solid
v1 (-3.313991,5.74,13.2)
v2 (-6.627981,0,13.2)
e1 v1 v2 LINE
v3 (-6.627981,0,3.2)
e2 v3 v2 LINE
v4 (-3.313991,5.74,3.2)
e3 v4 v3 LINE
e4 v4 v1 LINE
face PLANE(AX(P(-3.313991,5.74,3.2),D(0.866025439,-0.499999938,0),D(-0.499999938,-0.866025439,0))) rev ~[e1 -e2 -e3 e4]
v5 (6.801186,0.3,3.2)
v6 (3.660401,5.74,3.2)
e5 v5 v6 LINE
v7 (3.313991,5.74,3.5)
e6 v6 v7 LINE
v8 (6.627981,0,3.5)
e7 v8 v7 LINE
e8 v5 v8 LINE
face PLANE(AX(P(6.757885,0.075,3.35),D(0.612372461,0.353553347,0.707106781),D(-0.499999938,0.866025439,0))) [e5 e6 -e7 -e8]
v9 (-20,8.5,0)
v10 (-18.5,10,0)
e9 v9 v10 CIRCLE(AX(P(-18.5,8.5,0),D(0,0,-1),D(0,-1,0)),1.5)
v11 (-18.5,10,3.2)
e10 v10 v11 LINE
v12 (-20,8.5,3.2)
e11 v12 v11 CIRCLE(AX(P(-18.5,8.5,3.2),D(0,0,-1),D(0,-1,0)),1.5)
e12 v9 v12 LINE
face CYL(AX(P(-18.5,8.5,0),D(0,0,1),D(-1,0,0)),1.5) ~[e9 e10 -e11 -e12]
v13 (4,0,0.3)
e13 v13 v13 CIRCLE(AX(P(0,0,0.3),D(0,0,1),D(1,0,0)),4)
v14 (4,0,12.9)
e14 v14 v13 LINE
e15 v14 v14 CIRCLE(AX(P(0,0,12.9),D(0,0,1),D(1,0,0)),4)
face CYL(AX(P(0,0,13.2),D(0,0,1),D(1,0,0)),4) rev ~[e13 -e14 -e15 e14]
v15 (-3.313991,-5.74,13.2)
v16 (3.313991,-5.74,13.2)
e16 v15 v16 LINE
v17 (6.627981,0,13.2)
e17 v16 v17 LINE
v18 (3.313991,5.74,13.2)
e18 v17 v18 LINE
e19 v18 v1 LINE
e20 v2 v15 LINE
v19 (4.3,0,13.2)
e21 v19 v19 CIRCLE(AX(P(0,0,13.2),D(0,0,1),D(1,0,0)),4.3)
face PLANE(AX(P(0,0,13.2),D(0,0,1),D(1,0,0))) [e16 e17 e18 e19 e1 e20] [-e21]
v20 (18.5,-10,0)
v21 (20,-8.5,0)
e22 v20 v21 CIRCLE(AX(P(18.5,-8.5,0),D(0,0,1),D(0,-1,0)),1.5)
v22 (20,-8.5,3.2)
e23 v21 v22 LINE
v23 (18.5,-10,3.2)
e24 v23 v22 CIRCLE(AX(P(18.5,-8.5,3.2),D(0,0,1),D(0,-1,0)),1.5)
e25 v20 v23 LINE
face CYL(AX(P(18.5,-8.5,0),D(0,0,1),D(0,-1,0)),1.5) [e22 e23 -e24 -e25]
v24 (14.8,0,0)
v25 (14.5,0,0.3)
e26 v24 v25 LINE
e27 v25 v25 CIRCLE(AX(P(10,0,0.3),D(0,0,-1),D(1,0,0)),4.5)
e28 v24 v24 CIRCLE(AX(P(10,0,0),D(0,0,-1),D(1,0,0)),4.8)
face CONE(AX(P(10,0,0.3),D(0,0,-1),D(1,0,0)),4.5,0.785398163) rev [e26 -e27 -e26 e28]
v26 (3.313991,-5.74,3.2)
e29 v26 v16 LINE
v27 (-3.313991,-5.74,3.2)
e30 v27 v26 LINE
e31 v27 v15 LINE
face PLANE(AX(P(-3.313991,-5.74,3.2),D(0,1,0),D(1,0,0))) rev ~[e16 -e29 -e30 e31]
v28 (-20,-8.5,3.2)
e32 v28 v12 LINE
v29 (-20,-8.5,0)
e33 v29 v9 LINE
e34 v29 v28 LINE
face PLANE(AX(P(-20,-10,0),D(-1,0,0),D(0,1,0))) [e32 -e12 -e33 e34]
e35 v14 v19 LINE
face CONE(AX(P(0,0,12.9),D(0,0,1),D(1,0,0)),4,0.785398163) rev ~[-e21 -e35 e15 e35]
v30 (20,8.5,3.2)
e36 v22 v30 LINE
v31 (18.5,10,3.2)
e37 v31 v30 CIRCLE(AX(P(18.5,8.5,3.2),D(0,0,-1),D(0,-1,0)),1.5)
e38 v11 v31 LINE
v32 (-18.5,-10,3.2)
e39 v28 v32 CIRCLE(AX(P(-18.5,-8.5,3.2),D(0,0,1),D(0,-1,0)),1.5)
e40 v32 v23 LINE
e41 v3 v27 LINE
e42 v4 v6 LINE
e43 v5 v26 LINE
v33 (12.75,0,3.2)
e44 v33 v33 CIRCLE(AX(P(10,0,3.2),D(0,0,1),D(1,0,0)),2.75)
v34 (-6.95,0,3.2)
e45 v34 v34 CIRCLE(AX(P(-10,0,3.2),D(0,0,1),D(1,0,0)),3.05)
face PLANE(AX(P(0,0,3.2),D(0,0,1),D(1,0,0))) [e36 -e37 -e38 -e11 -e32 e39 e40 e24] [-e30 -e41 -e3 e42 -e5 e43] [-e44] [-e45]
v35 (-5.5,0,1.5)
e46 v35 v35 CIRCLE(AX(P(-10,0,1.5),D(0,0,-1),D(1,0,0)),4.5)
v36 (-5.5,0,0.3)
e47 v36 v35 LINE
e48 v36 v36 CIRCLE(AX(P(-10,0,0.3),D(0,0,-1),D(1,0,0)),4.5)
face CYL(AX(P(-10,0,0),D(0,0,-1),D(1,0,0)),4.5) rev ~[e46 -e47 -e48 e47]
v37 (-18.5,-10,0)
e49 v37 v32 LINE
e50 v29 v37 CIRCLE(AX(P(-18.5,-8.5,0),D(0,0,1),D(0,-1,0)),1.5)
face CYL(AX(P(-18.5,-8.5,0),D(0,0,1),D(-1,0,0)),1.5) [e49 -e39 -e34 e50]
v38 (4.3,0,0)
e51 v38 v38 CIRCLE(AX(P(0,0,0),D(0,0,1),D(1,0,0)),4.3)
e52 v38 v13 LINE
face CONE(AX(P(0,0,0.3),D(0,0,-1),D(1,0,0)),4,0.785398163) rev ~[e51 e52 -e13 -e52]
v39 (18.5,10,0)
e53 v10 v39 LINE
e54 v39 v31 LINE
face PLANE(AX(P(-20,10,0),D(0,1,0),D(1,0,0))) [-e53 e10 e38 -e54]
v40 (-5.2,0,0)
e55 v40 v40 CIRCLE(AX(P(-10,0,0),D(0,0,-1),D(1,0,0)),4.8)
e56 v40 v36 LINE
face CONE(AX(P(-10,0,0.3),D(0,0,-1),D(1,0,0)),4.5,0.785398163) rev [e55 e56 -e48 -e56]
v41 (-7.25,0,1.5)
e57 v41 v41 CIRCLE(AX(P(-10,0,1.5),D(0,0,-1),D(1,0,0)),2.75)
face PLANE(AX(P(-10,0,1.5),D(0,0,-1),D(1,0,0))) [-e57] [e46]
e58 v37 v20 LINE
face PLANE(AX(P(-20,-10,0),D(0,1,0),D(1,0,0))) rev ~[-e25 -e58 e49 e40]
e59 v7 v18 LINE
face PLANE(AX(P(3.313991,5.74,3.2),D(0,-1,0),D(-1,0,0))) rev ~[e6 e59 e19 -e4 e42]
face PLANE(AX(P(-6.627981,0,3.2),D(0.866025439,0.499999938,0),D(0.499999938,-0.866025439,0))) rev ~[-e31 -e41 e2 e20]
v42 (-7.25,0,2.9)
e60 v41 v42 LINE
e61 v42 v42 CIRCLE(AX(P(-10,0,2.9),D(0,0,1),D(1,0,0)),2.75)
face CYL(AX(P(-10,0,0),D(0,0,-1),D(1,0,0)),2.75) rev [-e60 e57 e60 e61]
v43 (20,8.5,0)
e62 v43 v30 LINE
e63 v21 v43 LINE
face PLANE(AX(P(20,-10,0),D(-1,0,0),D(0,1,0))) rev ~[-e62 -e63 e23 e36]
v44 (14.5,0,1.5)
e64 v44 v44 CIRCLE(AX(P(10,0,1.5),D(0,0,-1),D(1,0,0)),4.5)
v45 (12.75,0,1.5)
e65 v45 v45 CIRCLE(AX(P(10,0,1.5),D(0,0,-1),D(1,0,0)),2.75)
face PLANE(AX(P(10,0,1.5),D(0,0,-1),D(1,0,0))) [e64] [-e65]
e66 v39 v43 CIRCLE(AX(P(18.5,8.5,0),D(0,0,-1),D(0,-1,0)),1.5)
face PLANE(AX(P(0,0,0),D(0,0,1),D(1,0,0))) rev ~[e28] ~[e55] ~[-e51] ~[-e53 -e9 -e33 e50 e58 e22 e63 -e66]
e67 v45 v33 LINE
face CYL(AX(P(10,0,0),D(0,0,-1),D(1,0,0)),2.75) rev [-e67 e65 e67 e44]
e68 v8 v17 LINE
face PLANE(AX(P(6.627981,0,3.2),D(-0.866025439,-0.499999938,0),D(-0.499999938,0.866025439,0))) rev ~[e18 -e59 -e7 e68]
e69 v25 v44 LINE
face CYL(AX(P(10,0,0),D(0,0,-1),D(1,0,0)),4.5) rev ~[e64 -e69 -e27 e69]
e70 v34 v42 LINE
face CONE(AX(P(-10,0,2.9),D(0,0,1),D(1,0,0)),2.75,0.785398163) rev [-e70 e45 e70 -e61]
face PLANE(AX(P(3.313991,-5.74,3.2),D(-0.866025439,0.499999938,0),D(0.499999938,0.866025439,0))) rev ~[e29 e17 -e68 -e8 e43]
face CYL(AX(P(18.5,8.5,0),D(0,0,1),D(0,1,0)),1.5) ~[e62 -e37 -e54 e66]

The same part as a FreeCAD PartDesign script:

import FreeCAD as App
import Part
import Sketcher
Q = App.Units.Quantity


def edges_at(feature, points):
    """Names of the edges that pass closest to the given points."""
    edges = feature.Shape.Edges
    near = lambda p: min(range(len(edges)), key=lambda i: edges[i].distToShape(Part.Vertex(*p))[0])
    return sorted({f"Edge{near(p) + 1}" for p in points})

doc = App.newDocument("Part")
body = doc.addObject("PartDesign::Body", "Body")

sketch1 = doc.addObject("Sketcher::SketchObject", "Sketch")
body.addObject(sketch1)
sketch1.AttachmentSupport = (doc.XY_Plane, [""])
sketch1.MapMode = "FlatFace"
sketch1.addGeometry([
    Part.LineSegment(App.Vector(-20, 10, 0), App.Vector(-20, -10, 0)),
    Part.LineSegment(App.Vector(-20, -10, 0), App.Vector(20, -10, 0)),
    Part.LineSegment(App.Vector(20, -10, 0), App.Vector(20, 10, 0)),
    Part.LineSegment(App.Vector(20, 10, 0), App.Vector(-20, 10, 0)),
    Part.Circle(App.Vector(-10, 0, 0), App.Vector(0, 0, 1), 2.8),
    Part.Circle(App.Vector(10, 0, 0), App.Vector(0, 0, 1), 2.8),
], False)
sketch1.addConstraint([
    Sketcher.Constraint("Coincident", 0, 2, 1, 1),
    Sketcher.Constraint("Coincident", 1, 2, 2, 1),
    Sketcher.Constraint("Coincident", 2, 2, 3, 1),
    Sketcher.Constraint("Coincident", 3, 2, 0, 1),
    Sketcher.Constraint("Vertical", 0),
    Sketcher.Constraint("Horizontal", 1),
    Sketcher.Constraint("Vertical", 2),
    Sketcher.Constraint("Horizontal", 3),
    Sketcher.Constraint("Equal", 4, 5),
    Sketcher.Constraint("Symmetric", 4, 3, 5, 3, -1, 1),
    Sketcher.Constraint("Symmetric", 0, 2, 2, 2, -1, 1),
    Sketcher.Constraint("PointOnObject", 4, 3, -1),
    Sketcher.Constraint("Diameter", 4, Q("5.5 mm")),
    Sketcher.Constraint("DistanceX", 1, 1, 1, 2, Q("40 mm")),
    Sketcher.Constraint("DistanceY", 0, 2, 0, 1, Q("20 mm")),
    Sketcher.Constraint("DistanceX", 4, 3, -1, 1, Q("10 mm")),
])
pad1 = doc.addObject("PartDesign::Pad", "Pad")
body.addObject(pad1)
pad1.Profile = sketch1
pad1.Length = 3.2
doc.recompute()

fillet = doc.addObject("PartDesign::Fillet", "Fillet")
body.addObject(fillet)
fillet.Base = (pad1, edges_at(pad1, [
    (-20, -10, 1.6),
    (-20, 10, 1.6),
    (20, 10, 1.6),
    (20, -10, 1.6),
]))
fillet.Radius = 1.5

sketch2 = doc.addObject("Sketcher::SketchObject", "Sketch001")
body.addObject(sketch2)
sketch2.AttachmentSupport = (doc.XY_Plane, [""])
sketch2.MapMode = "FlatFace"
sketch2.AttachmentOffset = App.Placement(App.Vector(0, 0, 3.2), App.Rotation())
sketch2.addGeometry([
    Part.LineSegment(App.Vector(7, 0, 0), App.Vector(3, 6, 0)),
    Part.LineSegment(App.Vector(3, 6, 0), App.Vector(-3, 6, 0)),
    Part.LineSegment(App.Vector(-3, 6, 0), App.Vector(-7, 0, 0)),
    Part.LineSegment(App.Vector(-7, 0, 0), App.Vector(-3, -6, 0)),
    Part.LineSegment(App.Vector(-3, -6, 0), App.Vector(3, -6, 0)),
    Part.LineSegment(App.Vector(3, -6, 0), App.Vector(7, 0, 0)),
], False)
sketch2.addConstraint([
    Sketcher.Constraint("Coincident", 0, 2, 1, 1),
    Sketcher.Constraint("Coincident", 1, 2, 2, 1),
    Sketcher.Constraint("Coincident", 2, 2, 3, 1),
    Sketcher.Constraint("Coincident", 3, 2, 4, 1),
    Sketcher.Constraint("Coincident", 4, 2, 5, 1),
    Sketcher.Constraint("Coincident", 5, 2, 0, 1),
    Sketcher.Constraint("Horizontal", 1),
    Sketcher.Constraint("Horizontal", 4),
    Sketcher.Constraint("Symmetric", 0, 2, 3, 2, -1, 1),
    Sketcher.Constraint("Symmetric", 2, 2, 5, 2, -1, 1),
    Sketcher.Constraint("PointOnObject", 2, 2, -1),
    Sketcher.Constraint("Parallel", 2, 5),
    Sketcher.Constraint("Vertical", 1, 2, 3, 2),
    Sketcher.Constraint("Angle", 0, Q("119.999996 deg")),
    Sketcher.Constraint("DistanceY", -1, 1, 0, 2, Q("5.74 mm")),
    Sketcher.Constraint("DistanceX", 1, 2, 1, 1, Q("6.627982 mm")),
])
pad2 = doc.addObject("PartDesign::Pad", "Pad001")
body.addObject(pad2)
pad2.Profile = sketch2
pad2.Length = 10

sketch3 = doc.addObject("Sketcher::SketchObject", "Sketch002")
body.addObject(sketch3)
sketch3.AttachmentSupport = (doc.XY_Plane, [""])
sketch3.MapMode = "FlatFace"
sketch3.AttachmentOffset = App.Placement(App.Vector(0, 0, 13.2), App.Rotation())
sketch3.addGeometry(Part.Circle(App.Vector(0, 0, 0), App.Vector(0, 0, 1), 4), False)
sketch3.addConstraint([
    Sketcher.Constraint("Coincident", 0, 3, -1, 1),
    Sketcher.Constraint("Diameter", 0, Q("8 mm")),
])
pocket1 = doc.addObject("PartDesign::Pocket", "Pocket")
body.addObject(pocket1)
pocket1.Profile = sketch3
pocket1.Type = "ThroughAll"

sketch4 = doc.addObject("Sketcher::SketchObject", "Sketch003")
body.addObject(sketch4)
sketch4.AttachmentSupport = (doc.XY_Plane, [""])
sketch4.MapMode = "FlatFace"
sketch4.addGeometry([
    Part.Circle(App.Vector(10, 0, 0), App.Vector(0, 0, 1), 4.5),
    Part.Circle(App.Vector(-10, 0, 0), App.Vector(0, 0, 1), 4.5),
], False)
sketch4.addConstraint([
    Sketcher.Constraint("Equal", 0, 1),
    Sketcher.Constraint("Symmetric", 0, 3, 1, 3, -1, 1),
    Sketcher.Constraint("PointOnObject", 0, 3, -1),
    Sketcher.Constraint("Diameter", 0, Q("9 mm")),
    Sketcher.Constraint("DistanceX", -1, 1, 0, 3, Q("10 mm")),
])
pocket2 = doc.addObject("PartDesign::Pocket", "Pocket001")
body.addObject(pocket2)
pocket2.Profile = sketch4
pocket2.Length = 1.5
pocket2.Reversed = True
doc.recompute()

chamfer = doc.addObject("PartDesign::Chamfer", "Chamfer")
body.addObject(chamfer)
chamfer.Base = (pocket2, edges_at(pocket2, [(5.5, 0, 0), (-4, 0, 0), (-14.5, 0, 0)]))
chamfer.Size = 0.3
doc.recompute()

chamfer2 = doc.addObject("PartDesign::Chamfer", "Chamfer001")
body.addObject(chamfer2)
chamfer2.Base = (chamfer, edges_at(chamfer, [(4.971, 2.87, 3.2), (-4, 0, 13.2), (-12.75, 0, 3.2)]))
chamfer2.Size = 0.3

doc.recompute()
